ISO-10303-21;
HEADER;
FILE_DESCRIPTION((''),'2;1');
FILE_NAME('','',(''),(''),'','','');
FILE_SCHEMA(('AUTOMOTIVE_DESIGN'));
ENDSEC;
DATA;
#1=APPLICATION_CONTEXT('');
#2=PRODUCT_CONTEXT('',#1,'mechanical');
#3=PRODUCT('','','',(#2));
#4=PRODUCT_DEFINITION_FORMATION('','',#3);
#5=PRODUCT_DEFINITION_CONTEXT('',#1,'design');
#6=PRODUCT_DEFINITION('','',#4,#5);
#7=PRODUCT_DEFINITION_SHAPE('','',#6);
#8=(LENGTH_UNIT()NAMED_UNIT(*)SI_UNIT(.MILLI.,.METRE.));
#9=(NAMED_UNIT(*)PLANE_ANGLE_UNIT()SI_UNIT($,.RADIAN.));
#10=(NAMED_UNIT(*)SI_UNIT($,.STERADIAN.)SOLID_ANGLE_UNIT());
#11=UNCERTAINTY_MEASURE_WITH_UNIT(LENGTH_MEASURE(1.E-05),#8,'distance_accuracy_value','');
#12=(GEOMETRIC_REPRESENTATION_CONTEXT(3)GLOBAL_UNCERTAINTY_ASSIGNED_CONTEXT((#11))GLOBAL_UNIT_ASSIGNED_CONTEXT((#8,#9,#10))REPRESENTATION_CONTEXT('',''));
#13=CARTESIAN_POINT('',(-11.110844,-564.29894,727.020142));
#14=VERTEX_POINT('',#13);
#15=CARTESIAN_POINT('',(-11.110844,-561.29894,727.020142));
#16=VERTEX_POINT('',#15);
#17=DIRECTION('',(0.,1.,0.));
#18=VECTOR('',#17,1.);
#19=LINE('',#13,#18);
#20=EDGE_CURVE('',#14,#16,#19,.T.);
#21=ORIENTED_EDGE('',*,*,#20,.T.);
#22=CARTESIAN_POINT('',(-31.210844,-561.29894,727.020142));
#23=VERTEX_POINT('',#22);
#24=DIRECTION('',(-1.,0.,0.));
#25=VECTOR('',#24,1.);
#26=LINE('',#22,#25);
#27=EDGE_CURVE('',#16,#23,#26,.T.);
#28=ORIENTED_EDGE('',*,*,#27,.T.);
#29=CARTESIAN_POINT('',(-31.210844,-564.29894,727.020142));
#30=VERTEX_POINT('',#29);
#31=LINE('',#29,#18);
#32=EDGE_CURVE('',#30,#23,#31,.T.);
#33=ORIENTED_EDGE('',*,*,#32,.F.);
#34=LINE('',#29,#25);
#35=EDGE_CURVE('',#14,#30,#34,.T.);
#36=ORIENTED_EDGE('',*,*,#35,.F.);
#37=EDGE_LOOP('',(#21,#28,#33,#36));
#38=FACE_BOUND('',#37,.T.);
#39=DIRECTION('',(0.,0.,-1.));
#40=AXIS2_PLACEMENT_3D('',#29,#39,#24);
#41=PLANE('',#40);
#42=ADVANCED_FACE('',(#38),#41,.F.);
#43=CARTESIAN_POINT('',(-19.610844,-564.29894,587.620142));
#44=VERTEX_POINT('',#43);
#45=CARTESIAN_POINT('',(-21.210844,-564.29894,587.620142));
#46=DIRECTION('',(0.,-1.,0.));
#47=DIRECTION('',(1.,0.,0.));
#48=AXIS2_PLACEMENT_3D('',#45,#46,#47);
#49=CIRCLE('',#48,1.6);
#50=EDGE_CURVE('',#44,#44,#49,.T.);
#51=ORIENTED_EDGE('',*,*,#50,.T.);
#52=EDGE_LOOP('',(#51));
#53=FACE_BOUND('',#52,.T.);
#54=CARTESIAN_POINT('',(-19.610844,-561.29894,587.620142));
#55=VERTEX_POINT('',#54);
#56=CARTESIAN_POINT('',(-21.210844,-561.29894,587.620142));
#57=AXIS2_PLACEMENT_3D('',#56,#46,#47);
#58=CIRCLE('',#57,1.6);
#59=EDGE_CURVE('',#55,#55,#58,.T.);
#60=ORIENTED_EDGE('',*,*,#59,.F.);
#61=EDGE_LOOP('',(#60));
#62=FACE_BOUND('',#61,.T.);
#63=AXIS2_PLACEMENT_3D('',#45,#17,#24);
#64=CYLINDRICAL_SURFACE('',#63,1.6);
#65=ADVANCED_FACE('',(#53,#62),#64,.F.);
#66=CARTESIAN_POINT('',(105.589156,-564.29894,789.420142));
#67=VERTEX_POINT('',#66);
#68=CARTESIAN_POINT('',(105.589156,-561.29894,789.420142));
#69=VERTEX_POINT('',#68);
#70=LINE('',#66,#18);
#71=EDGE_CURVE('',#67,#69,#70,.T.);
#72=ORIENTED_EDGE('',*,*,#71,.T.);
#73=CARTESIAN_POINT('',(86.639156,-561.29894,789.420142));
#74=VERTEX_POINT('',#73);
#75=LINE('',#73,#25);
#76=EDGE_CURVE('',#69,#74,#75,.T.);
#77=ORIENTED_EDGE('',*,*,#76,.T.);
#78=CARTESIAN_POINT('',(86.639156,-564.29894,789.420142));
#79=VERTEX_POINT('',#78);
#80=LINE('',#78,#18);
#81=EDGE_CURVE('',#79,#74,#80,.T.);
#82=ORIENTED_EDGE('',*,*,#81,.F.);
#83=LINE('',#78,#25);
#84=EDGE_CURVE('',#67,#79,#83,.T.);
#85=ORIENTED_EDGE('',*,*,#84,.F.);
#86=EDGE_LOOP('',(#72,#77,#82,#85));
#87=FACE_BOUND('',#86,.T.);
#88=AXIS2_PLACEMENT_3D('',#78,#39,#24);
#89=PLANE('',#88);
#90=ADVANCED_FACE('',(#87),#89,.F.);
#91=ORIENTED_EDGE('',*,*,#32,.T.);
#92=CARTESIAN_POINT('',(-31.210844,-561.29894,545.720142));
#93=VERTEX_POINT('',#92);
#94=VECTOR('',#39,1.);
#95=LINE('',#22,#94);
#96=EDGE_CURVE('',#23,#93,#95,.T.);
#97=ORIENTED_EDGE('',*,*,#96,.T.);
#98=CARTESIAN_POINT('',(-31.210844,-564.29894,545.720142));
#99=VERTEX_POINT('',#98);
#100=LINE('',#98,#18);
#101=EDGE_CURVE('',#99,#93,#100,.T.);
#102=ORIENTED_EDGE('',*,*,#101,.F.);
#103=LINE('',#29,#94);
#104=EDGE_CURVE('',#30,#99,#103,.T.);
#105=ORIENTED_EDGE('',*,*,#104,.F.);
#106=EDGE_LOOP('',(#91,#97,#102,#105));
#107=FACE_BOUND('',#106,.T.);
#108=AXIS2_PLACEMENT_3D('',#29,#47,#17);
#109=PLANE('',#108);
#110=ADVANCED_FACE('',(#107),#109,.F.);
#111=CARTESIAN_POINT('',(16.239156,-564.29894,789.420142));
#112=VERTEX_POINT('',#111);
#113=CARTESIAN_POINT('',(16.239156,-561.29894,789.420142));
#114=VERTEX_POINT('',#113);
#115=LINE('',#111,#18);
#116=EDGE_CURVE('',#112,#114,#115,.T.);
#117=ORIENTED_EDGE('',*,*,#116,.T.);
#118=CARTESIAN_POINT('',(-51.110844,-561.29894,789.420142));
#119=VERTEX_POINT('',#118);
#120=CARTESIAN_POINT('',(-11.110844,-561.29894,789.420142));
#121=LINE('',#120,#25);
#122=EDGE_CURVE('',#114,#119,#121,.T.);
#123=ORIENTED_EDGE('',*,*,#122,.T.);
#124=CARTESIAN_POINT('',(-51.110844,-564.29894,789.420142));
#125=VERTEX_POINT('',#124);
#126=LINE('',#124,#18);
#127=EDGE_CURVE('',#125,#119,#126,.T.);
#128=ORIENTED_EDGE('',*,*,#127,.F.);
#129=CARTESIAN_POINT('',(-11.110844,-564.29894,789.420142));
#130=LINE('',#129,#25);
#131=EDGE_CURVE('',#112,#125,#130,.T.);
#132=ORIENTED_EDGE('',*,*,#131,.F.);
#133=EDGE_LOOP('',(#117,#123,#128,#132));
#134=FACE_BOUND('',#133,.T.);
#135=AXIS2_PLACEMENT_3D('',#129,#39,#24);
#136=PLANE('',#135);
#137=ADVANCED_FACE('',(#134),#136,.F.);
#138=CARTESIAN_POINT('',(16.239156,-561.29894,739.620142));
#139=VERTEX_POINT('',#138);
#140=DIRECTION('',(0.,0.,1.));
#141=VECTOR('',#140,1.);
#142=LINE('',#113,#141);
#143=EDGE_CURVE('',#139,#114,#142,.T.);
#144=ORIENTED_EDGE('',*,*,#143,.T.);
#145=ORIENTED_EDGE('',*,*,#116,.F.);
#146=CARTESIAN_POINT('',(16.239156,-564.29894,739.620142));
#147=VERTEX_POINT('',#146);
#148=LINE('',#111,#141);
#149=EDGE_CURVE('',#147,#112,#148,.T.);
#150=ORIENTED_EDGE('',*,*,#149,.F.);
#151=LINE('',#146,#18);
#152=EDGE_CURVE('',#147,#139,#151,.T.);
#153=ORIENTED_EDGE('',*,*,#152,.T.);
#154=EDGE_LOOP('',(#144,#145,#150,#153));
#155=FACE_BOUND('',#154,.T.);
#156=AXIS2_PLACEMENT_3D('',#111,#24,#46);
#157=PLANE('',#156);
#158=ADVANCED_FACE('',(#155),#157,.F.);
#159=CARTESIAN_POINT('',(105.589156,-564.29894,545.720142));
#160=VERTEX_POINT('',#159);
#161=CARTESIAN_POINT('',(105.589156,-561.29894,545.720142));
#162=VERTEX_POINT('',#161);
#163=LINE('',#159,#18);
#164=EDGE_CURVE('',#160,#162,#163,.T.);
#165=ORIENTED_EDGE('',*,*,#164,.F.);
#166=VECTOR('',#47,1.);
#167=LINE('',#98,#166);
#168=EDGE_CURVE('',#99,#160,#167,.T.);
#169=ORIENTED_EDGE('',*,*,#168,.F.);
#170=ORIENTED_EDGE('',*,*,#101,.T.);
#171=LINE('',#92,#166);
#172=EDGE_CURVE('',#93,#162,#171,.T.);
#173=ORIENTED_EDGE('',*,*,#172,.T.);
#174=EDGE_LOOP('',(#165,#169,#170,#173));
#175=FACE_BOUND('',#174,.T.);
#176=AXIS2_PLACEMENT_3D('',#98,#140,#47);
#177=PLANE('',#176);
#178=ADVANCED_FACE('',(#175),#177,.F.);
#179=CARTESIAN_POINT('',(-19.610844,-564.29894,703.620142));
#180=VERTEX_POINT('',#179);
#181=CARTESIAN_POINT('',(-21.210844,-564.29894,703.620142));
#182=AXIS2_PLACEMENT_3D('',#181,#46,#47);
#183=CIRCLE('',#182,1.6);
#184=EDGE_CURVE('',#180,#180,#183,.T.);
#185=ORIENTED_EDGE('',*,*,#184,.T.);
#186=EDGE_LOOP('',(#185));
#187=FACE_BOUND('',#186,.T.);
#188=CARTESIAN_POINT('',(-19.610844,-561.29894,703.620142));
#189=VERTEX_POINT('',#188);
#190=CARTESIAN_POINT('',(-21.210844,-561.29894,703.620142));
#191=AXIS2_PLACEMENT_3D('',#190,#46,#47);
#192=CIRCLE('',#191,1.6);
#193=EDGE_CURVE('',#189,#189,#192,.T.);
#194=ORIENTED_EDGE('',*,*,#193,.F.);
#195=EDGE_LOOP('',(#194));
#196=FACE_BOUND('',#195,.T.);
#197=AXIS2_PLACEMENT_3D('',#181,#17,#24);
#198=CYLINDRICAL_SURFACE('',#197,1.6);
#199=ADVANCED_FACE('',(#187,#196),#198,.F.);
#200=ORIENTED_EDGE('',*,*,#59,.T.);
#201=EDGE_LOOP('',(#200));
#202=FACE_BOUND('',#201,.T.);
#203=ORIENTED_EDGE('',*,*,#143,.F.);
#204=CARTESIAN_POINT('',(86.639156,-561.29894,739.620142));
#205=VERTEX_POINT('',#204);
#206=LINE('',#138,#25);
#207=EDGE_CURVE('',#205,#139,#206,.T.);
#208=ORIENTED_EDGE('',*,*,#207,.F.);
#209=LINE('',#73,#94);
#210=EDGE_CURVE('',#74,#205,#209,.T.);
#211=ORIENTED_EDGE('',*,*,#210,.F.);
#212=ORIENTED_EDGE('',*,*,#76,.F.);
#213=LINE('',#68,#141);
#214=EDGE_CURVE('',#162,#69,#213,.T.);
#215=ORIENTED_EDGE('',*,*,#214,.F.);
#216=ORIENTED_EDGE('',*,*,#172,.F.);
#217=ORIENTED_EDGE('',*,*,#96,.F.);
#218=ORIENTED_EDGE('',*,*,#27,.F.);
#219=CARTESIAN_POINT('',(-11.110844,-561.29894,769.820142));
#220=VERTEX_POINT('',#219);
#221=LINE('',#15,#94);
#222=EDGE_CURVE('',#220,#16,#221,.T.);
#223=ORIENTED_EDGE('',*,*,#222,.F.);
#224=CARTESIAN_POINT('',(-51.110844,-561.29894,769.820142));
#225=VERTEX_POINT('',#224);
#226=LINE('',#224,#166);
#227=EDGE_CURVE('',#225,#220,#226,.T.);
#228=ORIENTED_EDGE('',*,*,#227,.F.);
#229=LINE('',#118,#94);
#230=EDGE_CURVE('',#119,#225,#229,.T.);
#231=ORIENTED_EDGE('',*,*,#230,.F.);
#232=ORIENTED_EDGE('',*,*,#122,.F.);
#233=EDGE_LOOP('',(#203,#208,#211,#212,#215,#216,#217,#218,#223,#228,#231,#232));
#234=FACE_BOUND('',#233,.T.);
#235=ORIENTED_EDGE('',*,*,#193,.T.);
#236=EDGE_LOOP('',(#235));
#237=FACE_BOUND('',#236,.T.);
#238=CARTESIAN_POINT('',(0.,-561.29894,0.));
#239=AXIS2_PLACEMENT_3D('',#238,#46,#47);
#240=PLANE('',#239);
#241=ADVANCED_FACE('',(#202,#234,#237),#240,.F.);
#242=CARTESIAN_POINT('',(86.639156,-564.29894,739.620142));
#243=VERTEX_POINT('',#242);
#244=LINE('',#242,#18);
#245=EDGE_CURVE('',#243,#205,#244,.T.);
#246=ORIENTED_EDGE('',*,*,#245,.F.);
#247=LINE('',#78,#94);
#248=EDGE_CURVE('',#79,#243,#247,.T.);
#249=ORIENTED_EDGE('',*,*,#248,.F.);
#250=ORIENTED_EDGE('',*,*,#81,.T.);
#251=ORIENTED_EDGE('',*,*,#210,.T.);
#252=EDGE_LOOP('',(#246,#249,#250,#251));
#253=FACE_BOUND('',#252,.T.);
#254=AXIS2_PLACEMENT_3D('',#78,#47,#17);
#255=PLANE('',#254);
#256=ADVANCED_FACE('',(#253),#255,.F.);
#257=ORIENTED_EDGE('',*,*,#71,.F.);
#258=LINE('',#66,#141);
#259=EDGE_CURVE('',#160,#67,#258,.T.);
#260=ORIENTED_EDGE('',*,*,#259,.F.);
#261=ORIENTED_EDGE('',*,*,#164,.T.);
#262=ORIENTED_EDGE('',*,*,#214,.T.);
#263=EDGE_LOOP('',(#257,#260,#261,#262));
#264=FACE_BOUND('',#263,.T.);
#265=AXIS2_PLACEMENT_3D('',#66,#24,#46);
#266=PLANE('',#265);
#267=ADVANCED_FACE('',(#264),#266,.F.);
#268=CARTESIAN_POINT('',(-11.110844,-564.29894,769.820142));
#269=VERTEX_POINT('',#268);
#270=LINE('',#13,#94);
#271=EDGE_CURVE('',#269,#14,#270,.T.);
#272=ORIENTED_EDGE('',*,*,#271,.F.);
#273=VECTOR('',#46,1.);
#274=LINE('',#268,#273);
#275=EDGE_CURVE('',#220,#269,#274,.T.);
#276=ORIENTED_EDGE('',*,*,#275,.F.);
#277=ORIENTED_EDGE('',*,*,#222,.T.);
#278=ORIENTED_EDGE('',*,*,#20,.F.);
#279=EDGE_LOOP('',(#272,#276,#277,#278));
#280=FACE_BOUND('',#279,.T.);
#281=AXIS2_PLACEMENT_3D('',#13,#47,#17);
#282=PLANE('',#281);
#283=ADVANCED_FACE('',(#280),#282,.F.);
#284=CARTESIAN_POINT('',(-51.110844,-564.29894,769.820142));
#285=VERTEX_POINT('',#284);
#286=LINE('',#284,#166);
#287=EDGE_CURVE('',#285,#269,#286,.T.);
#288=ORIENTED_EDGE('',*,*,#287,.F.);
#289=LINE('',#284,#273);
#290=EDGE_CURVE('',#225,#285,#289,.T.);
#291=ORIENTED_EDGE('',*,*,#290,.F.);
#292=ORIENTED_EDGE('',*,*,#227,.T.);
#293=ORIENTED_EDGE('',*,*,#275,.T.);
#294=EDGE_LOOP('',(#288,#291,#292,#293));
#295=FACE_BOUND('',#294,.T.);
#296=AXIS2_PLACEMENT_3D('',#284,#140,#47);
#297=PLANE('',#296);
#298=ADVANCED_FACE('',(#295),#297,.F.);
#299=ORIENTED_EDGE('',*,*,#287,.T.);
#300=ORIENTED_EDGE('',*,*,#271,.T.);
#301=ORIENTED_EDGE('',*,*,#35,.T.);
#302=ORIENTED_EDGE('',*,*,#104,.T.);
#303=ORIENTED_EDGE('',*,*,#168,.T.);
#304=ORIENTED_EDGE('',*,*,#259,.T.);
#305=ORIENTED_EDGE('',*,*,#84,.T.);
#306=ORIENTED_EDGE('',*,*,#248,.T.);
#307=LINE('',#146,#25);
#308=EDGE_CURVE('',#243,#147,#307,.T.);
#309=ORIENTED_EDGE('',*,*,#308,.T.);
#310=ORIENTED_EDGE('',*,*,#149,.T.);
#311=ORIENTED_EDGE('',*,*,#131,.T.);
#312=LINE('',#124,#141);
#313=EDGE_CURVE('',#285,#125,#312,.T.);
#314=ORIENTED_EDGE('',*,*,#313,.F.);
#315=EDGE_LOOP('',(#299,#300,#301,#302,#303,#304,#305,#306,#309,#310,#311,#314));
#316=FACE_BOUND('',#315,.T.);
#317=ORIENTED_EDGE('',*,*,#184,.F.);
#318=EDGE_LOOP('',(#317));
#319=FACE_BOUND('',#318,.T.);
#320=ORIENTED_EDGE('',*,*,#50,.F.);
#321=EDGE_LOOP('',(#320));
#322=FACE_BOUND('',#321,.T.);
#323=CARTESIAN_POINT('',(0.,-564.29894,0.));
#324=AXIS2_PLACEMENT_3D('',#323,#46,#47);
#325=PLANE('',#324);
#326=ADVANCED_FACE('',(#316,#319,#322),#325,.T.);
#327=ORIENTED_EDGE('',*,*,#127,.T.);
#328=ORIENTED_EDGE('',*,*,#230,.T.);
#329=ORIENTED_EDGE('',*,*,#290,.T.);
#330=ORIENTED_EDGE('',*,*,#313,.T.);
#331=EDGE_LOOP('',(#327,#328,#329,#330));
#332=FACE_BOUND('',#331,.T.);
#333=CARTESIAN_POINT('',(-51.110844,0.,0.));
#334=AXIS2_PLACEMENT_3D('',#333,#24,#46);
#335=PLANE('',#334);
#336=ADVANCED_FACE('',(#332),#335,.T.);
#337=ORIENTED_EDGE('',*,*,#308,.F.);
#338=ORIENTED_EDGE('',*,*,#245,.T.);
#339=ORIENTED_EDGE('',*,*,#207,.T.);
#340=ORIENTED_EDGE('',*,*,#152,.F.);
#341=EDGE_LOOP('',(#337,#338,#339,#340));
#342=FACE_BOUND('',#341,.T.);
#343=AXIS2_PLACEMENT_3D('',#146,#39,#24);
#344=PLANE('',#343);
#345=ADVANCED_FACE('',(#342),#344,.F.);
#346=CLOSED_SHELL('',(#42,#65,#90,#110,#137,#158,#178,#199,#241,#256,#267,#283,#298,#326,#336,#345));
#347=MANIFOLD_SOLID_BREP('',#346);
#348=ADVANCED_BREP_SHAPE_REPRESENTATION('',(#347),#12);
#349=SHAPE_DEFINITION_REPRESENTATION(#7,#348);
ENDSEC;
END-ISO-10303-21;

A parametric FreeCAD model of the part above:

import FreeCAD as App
import Part
import Sketcher


def add_polygon(sketch, points):
    """Adds a closed chain of lines whose ends are joined by coincident constraints."""
    first, n = sketch.GeometryCount, len(points)
    for a, b in zip(points, points[1:] + points[:1]):
        sketch.addGeometry(Part.LineSegment(App.Vector(*a, 0), App.Vector(*b, 0)), False)
    for i in range(n):
        sketch.addConstraint(Sketcher.Constraint("Coincident", first + i, 2, first + (i + 1) % n, 1))

doc = App.newDocument("Part")
params = doc.addObject("Spreadsheet::Sheet", "Params")
for row, (alias, value) in enumerate([
    ("sketch1_diameter", "3.2 mm"),
    ("sketch1_width", "20.1 mm"),
    ("sketch1_width2", "136.8 mm"),
    ("sketch1_width3", "70.4 mm"),
    ("sketch1_height", "62.4 mm"),
    ("pad1_length", "3 mm"),
    ("sketch2_width", "3 mm"),
    ("sketch2_height", "19.6 mm"),
    ("pad2_length", "40 mm"),
], start=1):
    params.set(f"A{row}", alias)
    params.set(f"B{row}", "=" + value)
    params.setAlias(f"B{row}", alias)

body = doc.addObject("PartDesign::Body", "Body")

# Sketch on XZ plane
sketch1 = doc.addObject("Sketcher::SketchObject", "Sketch")
body.addObject(sketch1)
sketch1.AttachmentSupport = (doc.XZ_Plane, [""])
sketch1.MapMode = "FlatFace"
sketch1.AttachmentOffset = App.Placement(App.Vector(0, 0, 561.29894), App.Rotation())
add_polygon(sketch1, [(16.2, 789.4), (-11.1, 789.4), (-11.1, 727), (-31.2, 727), (-31.2, 545.7), (105.6, 545.7), (105.6, 789.4), (86.6, 789.4), (86.6, 739.6), (16.2, 739.6)])  # lines 0-9
sketch1.addGeometry(Part.Circle(App.Vector(-21.2, 587.6, 0), App.Vector(0, 0, 1), 1.6), False)  # 10
sketch1.addGeometry(Part.Circle(App.Vector(-21.2, 703.6, 0), App.Vector(0, 0, 1), 1.6), False)  # 11
sketch1.addConstraint([
    Sketcher.Constraint("Horizontal", 0),
    Sketcher.Constraint("Vertical", 1),
    Sketcher.Constraint("Horizontal", 2),
    Sketcher.Constraint("Vertical", 3),
    Sketcher.Constraint("Horizontal", 4),
    Sketcher.Constraint("Vertical", 5),
    Sketcher.Constraint("Horizontal", 6),
    Sketcher.Constraint("Vertical", 7),
    Sketcher.Constraint("Horizontal", 8),
    Sketcher.Constraint("Vertical", 9),
    Sketcher.Constraint("Equal", 10, 11),
    Sketcher.Constraint("Horizontal", 0, 2, 5, 2),
    Sketcher.Constraint("Vertical", 10, 3, 11, 3),
    Sketcher.Constraint("Diameter", 10, 3.2),
    Sketcher.Constraint("DistanceX", 2, 2, 2, 1, 20.1),
    Sketcher.Constraint("DistanceX", 4, 1, 4, 2, 136.8),
    Sketcher.Constraint("DistanceX", 8, 2, 8, 1, 70.4),
    Sketcher.Constraint("DistanceY", 1, 2, 1, 1, 62.4),
    Sketcher.Constraint("DistanceY", 3, 2, 3, 1, 181.3),
    Sketcher.Constraint("DistanceY", 7, 2, 7, 1, 49.8),
    Sketcher.Constraint("DistanceY", 10, 3, 11, 3, 116.0),
    Sketcher.Constraint("DistanceX", 2, 2, 11, 3, 10.0),
    Sketcher.Constraint("DistanceY", 11, 3, 7, 2, 36.0),
    Sketcher.Constraint("DistanceX", 0, 2, 0, 1, 27.35),
    Sketcher.Constraint("DistanceY", -1, 1, 10, 3, 587.620142),
    Sketcher.Constraint("DistanceX", 10, 3, -1, 1, 21.210844),
])
sketch1.setExpression("Constraints[23]", "Params.sketch1_diameter")
sketch1.setExpression("Constraints[24]", "Params.sketch1_width")
sketch1.setExpression("Constraints[25]", "Params.sketch1_width2")
sketch1.setExpression("Constraints[26]", "Params.sketch1_width3")
sketch1.setExpression("Constraints[27]", "Params.sketch1_height")
pad1 = doc.addObject("PartDesign::Pad", "Pad")
body.addObject(pad1)
pad1.Profile = sketch1
pad1.setExpression("Length", "Params.pad1_length")

# Sketch on YZ plane
sketch2 = doc.addObject("Sketcher::SketchObject", "Sketch001")
body.addObject(sketch2)
sketch2.AttachmentSupport = (doc.YZ_Plane, [""])
sketch2.MapMode = "FlatFace"
sketch2.AttachmentOffset = App.Placement(App.Vector(0, 0, -11.110844), App.Rotation())
add_polygon(sketch2, [(-561.3, 769.8), (-564.3, 769.8), (-564.3, 789.4), (-561.3, 789.4)])  # lines 0-3
sketch2.addConstraint([
    Sketcher.Constraint("Horizontal", 0),
    Sketcher.Constraint("Vertical", 1),
    Sketcher.Constraint("Horizontal", 2),
    Sketcher.Constraint("Vertical", 3),
    Sketcher.Constraint("DistanceX", 0, 2, 0, 1, 3.0),
    Sketcher.Constraint("DistanceY", 1, 1, 1, 2, 19.6),
    Sketcher.Constraint("DistanceX", 0, 2, -1, 1, 564.29894),
    Sketcher.Constraint("DistanceY", -1, 1, 0, 2, 769.820142),
])
sketch2.setExpression("Constraints[8]", "Params.sketch2_width")
sketch2.setExpression("Constraints[9]", "Params.sketch2_height")
pad2 = doc.addObject("PartDesign::Pad", "Pad001")
body.addObject(pad2)
pad2.Profile = sketch2
pad2.setExpression("Length", "Params.pad2_length")
pad2.Reversed = True

doc.recompute()
